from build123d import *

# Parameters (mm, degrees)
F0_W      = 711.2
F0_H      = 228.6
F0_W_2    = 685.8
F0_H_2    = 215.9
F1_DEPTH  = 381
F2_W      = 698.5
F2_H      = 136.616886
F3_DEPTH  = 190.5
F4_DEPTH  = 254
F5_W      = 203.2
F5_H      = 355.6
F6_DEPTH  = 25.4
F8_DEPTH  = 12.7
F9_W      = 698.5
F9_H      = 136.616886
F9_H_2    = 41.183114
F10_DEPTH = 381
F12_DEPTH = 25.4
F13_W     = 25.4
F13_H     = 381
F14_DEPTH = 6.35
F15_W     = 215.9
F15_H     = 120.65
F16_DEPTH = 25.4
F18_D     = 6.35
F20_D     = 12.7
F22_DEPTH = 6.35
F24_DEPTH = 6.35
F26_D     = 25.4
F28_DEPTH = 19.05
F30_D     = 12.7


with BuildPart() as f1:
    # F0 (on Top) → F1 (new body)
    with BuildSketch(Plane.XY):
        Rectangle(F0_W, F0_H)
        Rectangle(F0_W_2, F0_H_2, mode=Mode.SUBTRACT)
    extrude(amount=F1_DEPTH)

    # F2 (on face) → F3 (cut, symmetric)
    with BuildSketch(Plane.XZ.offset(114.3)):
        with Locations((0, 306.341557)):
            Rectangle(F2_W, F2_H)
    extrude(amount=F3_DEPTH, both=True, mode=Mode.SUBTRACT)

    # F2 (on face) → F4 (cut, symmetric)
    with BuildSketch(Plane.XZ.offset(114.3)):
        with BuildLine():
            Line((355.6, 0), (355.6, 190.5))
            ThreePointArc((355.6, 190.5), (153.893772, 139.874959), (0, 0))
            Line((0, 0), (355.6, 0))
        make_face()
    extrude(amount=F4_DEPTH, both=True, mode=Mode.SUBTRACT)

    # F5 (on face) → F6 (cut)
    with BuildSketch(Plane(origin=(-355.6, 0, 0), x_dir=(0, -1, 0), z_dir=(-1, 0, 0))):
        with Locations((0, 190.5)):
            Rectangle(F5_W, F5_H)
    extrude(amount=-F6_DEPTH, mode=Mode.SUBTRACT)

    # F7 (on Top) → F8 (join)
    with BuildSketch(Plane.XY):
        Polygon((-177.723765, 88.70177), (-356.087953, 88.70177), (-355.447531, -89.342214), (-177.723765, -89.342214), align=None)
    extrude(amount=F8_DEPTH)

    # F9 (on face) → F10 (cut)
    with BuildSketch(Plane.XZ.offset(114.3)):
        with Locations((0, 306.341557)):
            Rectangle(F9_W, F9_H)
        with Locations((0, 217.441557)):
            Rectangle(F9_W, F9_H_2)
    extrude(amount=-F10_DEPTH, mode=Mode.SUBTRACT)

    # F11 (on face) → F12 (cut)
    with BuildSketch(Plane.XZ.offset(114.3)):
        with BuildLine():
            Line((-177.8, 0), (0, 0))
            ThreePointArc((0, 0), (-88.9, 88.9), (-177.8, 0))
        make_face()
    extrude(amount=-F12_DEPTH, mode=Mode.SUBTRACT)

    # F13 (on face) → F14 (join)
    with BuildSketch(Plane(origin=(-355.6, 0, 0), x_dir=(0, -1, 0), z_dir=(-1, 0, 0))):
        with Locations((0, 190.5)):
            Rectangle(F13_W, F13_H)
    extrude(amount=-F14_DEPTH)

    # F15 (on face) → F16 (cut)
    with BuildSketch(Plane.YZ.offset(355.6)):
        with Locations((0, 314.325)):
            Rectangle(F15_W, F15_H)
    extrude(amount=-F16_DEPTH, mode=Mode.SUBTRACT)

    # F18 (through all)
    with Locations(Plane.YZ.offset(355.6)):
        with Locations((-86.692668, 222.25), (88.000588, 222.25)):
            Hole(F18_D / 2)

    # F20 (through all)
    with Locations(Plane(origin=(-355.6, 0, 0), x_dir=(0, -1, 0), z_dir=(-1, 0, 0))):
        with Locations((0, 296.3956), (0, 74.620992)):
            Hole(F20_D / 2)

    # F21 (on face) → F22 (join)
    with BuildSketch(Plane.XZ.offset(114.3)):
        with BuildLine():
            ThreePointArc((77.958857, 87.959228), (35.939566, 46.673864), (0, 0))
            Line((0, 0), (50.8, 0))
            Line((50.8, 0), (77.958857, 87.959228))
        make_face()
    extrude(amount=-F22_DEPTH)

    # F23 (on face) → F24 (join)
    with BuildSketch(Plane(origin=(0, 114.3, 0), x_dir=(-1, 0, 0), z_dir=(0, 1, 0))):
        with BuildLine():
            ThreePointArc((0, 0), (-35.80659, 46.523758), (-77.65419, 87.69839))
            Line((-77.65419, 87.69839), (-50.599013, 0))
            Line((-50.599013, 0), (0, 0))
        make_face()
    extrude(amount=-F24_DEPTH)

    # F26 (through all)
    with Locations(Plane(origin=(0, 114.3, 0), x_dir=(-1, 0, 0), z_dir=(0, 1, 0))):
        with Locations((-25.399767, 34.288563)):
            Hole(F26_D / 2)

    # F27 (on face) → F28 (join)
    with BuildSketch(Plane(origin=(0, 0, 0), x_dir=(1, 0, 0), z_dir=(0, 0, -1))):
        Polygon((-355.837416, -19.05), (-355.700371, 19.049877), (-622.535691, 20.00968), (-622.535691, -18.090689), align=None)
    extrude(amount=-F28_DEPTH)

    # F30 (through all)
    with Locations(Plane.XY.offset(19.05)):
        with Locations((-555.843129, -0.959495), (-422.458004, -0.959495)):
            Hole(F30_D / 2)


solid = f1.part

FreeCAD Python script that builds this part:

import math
import FreeCAD as App
import Part
import Sketcher
from FreeCAD import Vector
Q = App.Units.Quantity


def add_polygon(sketch, points):
    """Adds a closed chain of lines whose ends are joined by coincident constraints."""
    first, n = sketch.GeometryCount, len(points)
    for a, b in zip(points, points[1:] + points[:1]):
        sketch.addGeometry(Part.LineSegment(App.Vector(*a, 0), App.Vector(*b, 0)), False)
    for i in range(n):
        sketch.addConstraint(Sketcher.Constraint("Coincident", first + i, 2, first + (i + 1) % n, 1))

doc = App.newDocument("Part")
body = doc.addObject("PartDesign::Body", "Body")

# Sketch on XY plane
sketch1 = body.newObject("Sketcher::SketchObject", "Sketch")
sketch1.AttachmentSupport = (doc.getObject("XY_Plane"), [""])
sketch1.MapMode = "FlatFace"
add_polygon(sketch1, [(-355.6, 114.3), (-355.6, -114.3), (355.6, -114.3), (355.6, 114.3)])  # lines 0-3
add_polygon(sketch1, [(342.9, -107.95), (-342.9, -107.95), (-342.9, 107.95), (342.9, 107.95)])  # lines 4-7
sketch1.addConstraint([
    Sketcher.Constraint("Vertical", 0),
    Sketcher.Constraint("Horizontal", 1),
    Sketcher.Constraint("Vertical", 2),
    Sketcher.Constraint("Horizontal", 3),
    Sketcher.Constraint("Horizontal", 4),
    Sketcher.Constraint("Vertical", 5),
    Sketcher.Constraint("Horizontal", 6),
    Sketcher.Constraint("Vertical", 7),
    Sketcher.Constraint("Symmetric", 0, 2, 2, 2, -1, 1),
    Sketcher.Constraint("Symmetric", 4, 2, 6, 2, -1, 1),
    Sketcher.Constraint("DistanceX", 1, 1, 1, 2, Q("28 in")),
    Sketcher.Constraint("DistanceX", 4, 2, 4, 1, Q("27 in")),
    Sketcher.Constraint("DistanceY", 0, 2, 0, 1, Q("9 in")),
    Sketcher.Constraint("DistanceY", 5, 1, 5, 2, Q("8.5 in")),
])
pad1 = body.newObject("PartDesign::Pad", "Pad")
pad1.Profile = sketch1
pad1.Length = Q("15 in")

# Sketch on XZ plane
sketch2 = body.newObject("Sketcher::SketchObject", "Sketch001")
sketch2.AttachmentSupport = (doc.getObject("XZ_Plane"), [""])
sketch2.MapMode = "FlatFace"
sketch2.AttachmentOffset = App.Placement(Vector(0, 0, 4.5 * 25.4), App.Rotation())
add_polygon(sketch2, [(-349.25, 374.65), (-349.25, 238.033114), (349.25, 238.033114), (349.25, 374.65)])  # lines 0-3
sketch2.addConstraint([
    Sketcher.Constraint("Vertical", 0),
    Sketcher.Constraint("Horizontal", 1),
    Sketcher.Constraint("Vertical", 2),
    Sketcher.Constraint("Horizontal", 3),
    Sketcher.Constraint("DistanceX", 1, 1, 1, 2, Q("27.5 in")),
    Sketcher.Constraint("DistanceX", 0, 2, -1, 1, Q("13.75 in")),
    Sketcher.Constraint("DistanceY", -1, 1, 2, 2, Q("14.75 in")),
    Sketcher.Constraint("DistanceY", 0, 2, 0, 1, Q("136.616886 mm")),
])
pocket1 = body.newObject("PartDesign::Pocket", "Pocket")
pocket1.Profile = sketch2
pocket1.Length = Q("15 in")
pocket1.Midplane = True

# Sketch on XZ plane
sketch3 = body.newObject("Sketcher::SketchObject", "Sketch002")
sketch3.AttachmentSupport = (doc.getObject("XZ_Plane"), [""])
sketch3.MapMode = "FlatFace"
sketch3.AttachmentOffset = App.Placement(Vector(0, 0, 4.5 * 25.4), App.Rotation())
sketch3.addGeometry([
    Part.LineSegment(Vector(355.6, 0, 0), Vector(355.6, 190.5, 0)),
    Part.ArcOfCircle(Part.Circle(Vector(355.600002, -236.643336, 0), Vector(0, 0, 1), 427.143336), math.radians(90), math.radians(146.35718)),
    Part.LineSegment(Vector(0, 0, 0), Vector(355.6, 0, 0)),
], False)
sketch3.addConstraint([
    Sketcher.Constraint("Coincident", 0, 2, 1, 1),
    Sketcher.Constraint("Coincident", 1, 2, 2, 1),
    Sketcher.Constraint("Coincident", 2, 2, 0, 1),
    Sketcher.Constraint("Vertical", 0),
    Sketcher.Constraint("Horizontal", 2),
    Sketcher.Constraint("PointOnObject", 2, 2, -1),
    Sketcher.Constraint("Vertical", 1, 3, 0, 2),
    Sketcher.Constraint("DistanceX", 2, 1, 2, 2, Q("14 in")),
    Sketcher.Constraint("DistanceY", 0, 1, 0, 2, Q("7.5 in")),
    Sketcher.Constraint("DistanceX", -1, 1, 1, 3, Q("14.0000001 in")),
])
pocket2 = body.newObject("PartDesign::Pocket", "Pocket001")
pocket2.Profile = sketch3
pocket2.Length = Q("20 in")
pocket2.Midplane = True

# Sketch on YZ plane
sketch4 = body.newObject("Sketcher::SketchObject", "Sketch003")
sketch4.AttachmentSupport = (doc.getObject("YZ_Plane"), [""])
sketch4.MapMode = "FlatFace"
sketch4.AttachmentOffset = App.Placement(Vector(0, 0, -14 * 25.4), App.Rotation())
add_polygon(sketch4, [(101.6, 368.3), (101.6, 12.7), (-101.6, 12.7), (-101.6, 368.3)])  # lines 0-3
sketch4.addConstraint([
    Sketcher.Constraint("Vertical", 0),
    Sketcher.Constraint("Horizontal", 1),
    Sketcher.Constraint("Vertical", 2),
    Sketcher.Constraint("Horizontal", 3),
    Sketcher.Constraint("DistanceX", 1, 2, 1, 1, Q("8 in")),
    Sketcher.Constraint("DistanceY", 0, 2, 0, 1, Q("14 in")),
    Sketcher.Constraint("DistanceX", -1, 1, 0, 2, Q("4 in")),
    Sketcher.Constraint("DistanceY", -1, 1, 0, 2, Q("0.5 in")),
])
pocket3 = body.newObject("PartDesign::Pocket", "Pocket002")
pocket3.Profile = sketch4
pocket3.Length = Q("1 in")
pocket3.Reversed = True

# Sketch on XY plane
sketch5 = body.newObject("Sketcher::SketchObject", "Sketch004")
sketch5.AttachmentSupport = (doc.getObject("XY_Plane"), [""])
sketch5.MapMode = "FlatFace"
add_polygon(sketch5, [(-177.723765, 88.70177), (-356.087953, 88.70177), (-355.447531, -89.342214), (-177.723765, -89.342214)])  # lines 0-3
sketch5.addConstraint([
    Sketcher.Constraint("Horizontal", 0),
    Sketcher.Constraint("Horizontal", 2),
    Sketcher.Constraint("Vertical", 3),
    Sketcher.Constraint("DistanceX", 0, 2, 0, 1, Q("178.364188 mm")),
    Sketcher.Constraint("DistanceX", 2, 1, 2, 2, Q("177.723766 mm")),
    Sketcher.Constraint("DistanceY", 3, 1, 3, 2, Q("178.043984 mm")),
    Sketcher.Constraint("DistanceY", -1, 1, 0, 2, Q("88.70177 mm")),
    Sketcher.Constraint("DistanceX", 1, 2, -1, 1, Q("355.447531 mm")),
])
pad2 = body.newObject("PartDesign::Pad", "Pad001")
pad2.Profile = sketch5
pad2.Length = Q("0.5 in")

# Sketch on XZ plane
sketch6 = body.newObject("Sketcher::SketchObject", "Sketch005")
sketch6.AttachmentSupport = (doc.getObject("XZ_Plane"), [""])
sketch6.MapMode = "FlatFace"
sketch6.AttachmentOffset = App.Placement(Vector(0, 0, 4.5 * 25.4), App.Rotation())
add_polygon(sketch6, [(-349.25, 374.65), (-349.25, 196.85), (349.25, 196.85), (349.25, 374.65)])  # lines 0-3
sketch6.addConstraint([
    Sketcher.Constraint("Vertical", 0),
    Sketcher.Constraint("Horizontal", 1),
    Sketcher.Constraint("Vertical", 2),
    Sketcher.Constraint("Horizontal", 3),
    Sketcher.Constraint("DistanceY", 0, 2, 0, 1, Q("7 in")),
    Sketcher.Constraint("DistanceX", 1, 1, 1, 2, Q("27.5 in")),
    Sketcher.Constraint("DistanceX", 0, 2, -1, 1, Q("13.75 in")),
    Sketcher.Constraint("DistanceY", -1, 1, 0, 2, Q("7.75 in")),
])
pocket4 = body.newObject("PartDesign::Pocket", "Pocket003")
pocket4.Profile = sketch6
pocket4.Length = Q("15 in")

# Sketch on XZ plane
sketch7 = body.newObject("Sketcher::SketchObject", "Sketch006")
sketch7.AttachmentSupport = (doc.getObject("XZ_Plane"), [""])
sketch7.MapMode = "FlatFace"
sketch7.AttachmentOffset = App.Placement(Vector(0, 0, 4.5 * 25.4), App.Rotation())
sketch7.addGeometry([
    Part.LineSegment(Vector(-177.8, 0, 0), Vector(0, 0, 0)),
    Part.ArcOfCircle(Part.Circle(Vector(-88.9, 0, 0), Vector(0, 0, 1), 88.9), math.radians(0), math.radians(180)),
], False)
sketch7.addConstraint([
    Sketcher.Constraint("Coincident", 0, 1, 1, 2),
    Sketcher.Constraint("Coincident", 1, 1, 0, 2),
    Sketcher.Constraint("Horizontal", 0),
    Sketcher.Constraint("Coincident", 1, 1, -1, 1),
    Sketcher.Constraint("PointOnObject", 1, 3, -1),
    Sketcher.Constraint("Radius", 1, Q("3.5 in")),
])
pocket5 = body.newObject("PartDesign::Pocket", "Pocket004")
pocket5.Profile = sketch7
pocket5.Length = Q("1 in")

# Sketch on YZ plane
sketch8 = body.newObject("Sketcher::SketchObject", "Sketch007")
sketch8.AttachmentSupport = (doc.getObject("YZ_Plane"), [""])
sketch8.MapMode = "FlatFace"
sketch8.AttachmentOffset = App.Placement(Vector(0, 0, -14 * 25.4), App.Rotation())
add_polygon(sketch8, [(12.7, 381), (12.7, 0), (-12.7, 0), (-12.7, 381)])  # lines 0-3
sketch8.addConstraint([
    Sketcher.Constraint("Vertical", 0),
    Sketcher.Constraint("Horizontal", 1),
    Sketcher.Constraint("Vertical", 2),
    Sketcher.Constraint("Horizontal", 3),
    Sketcher.Constraint("Symmetric", 0, 2, 1, 2, -1, 1),
    Sketcher.Constraint("DistanceX", 1, 2, 1, 1, Q("1 in")),
    Sketcher.Constraint("DistanceY", 0, 2, 0, 1, Q("15 in")),
])
pad3 = body.newObject("PartDesign::Pad", "Pad002")
pad3.Profile = sketch8
pad3.Length = Q("0.25 in")

# Sketch on YZ plane
sketch9 = body.newObject("Sketcher::SketchObject", "Sketch008")
sketch9.AttachmentSupport = (doc.getObject("YZ_Plane"), [""])
sketch9.MapMode = "FlatFace"
sketch9.AttachmentOffset = App.Placement(Vector(0, 0, 14 * 25.4), App.Rotation())
add_polygon(sketch9, [(-107.95, 374.65), (-107.95, 254), (107.95, 254), (107.95, 374.65)])  # lines 0-3
sketch9.addConstraint([
    Sketcher.Constraint("Vertical", 0),
    Sketcher.Constraint("Horizontal", 1),
    Sketcher.Constraint("Vertical", 2),
    Sketcher.Constraint("Horizontal", 3),
    Sketcher.Constraint("DistanceX", 1, 1, 1, 2, Q("8.5 in")),
    Sketcher.Constraint("DistanceY", -1, 1, 0, 2, Q("10 in")),
    Sketcher.Constraint("DistanceY", 0, 2, 0, 1, Q("4.75 in")),
    Sketcher.Constraint("DistanceX", 0, 2, -1, 1, Q("4.25 in")),
])
pocket6 = body.newObject("PartDesign::Pocket", "Pocket005")
pocket6.Profile = sketch9
pocket6.Length = Q("1 in")

# Sketch on YZ plane
sketch10 = body.newObject("Sketcher::SketchObject", "Sketch009")
sketch10.AttachmentSupport = (doc.getObject("YZ_Plane"), [""])
sketch10.MapMode = "FlatFace"
sketch10.AttachmentOffset = App.Placement(Vector(0, 0, 14 * 25.4), App.Rotation())
sketch10.addGeometry([
    Part.Circle(Vector(-86.692668, 222.25, 0), Vector(0, 0, 1), 3.175),
    Part.Circle(Vector(88.000588, 222.25, 0), Vector(0, 0, 1), 3.175),
], False)
sketch10.addConstraint([
    Sketcher.Constraint("Equal", 0, 1),
    Sketcher.Constraint("Horizontal", 0, 3, 1, 3),
    Sketcher.Constraint("Diameter", 0, Q("0.25 in")),
    Sketcher.Constraint("DistanceY", -1, 1, 0, 3, Q("8.75 in")),
    Sketcher.Constraint("DistanceX", 0, 3, -1, 1, Q("86.692668 mm")),
    Sketcher.Constraint("DistanceX", -1, 1, 1, 3, Q("88.000588 mm")),
])
doc.recompute()
hole = body.newObject("PartDesign::Hole", "Hole")
hole.Profile = sketch10
hole.ThreadType = "None"
hole.Diameter = Q("0.25 in")
hole.DepthType = "ThroughAll"

# Sketch on YZ plane
sketch11 = body.newObject("Sketcher::SketchObject", "Sketch010")
sketch11.AttachmentSupport = (doc.getObject("YZ_Plane"), [""])
sketch11.MapMode = "FlatFace"
sketch11.AttachmentOffset = App.Placement(Vector(0, 0, -14 * 25.4), App.Rotation())
sketch11.addGeometry([
    Part.Circle(Vector(0, 296.3956, 0), Vector(0, 0, 1), 6.35),
    Part.Circle(Vector(0, 74.620992, 0), Vector(0, 0, 1), 6.35),
], False)
sketch11.addConstraint([
    Sketcher.Constraint("Equal", 0, 1),
    Sketcher.Constraint("PointOnObject", 0, 3, -2),
    Sketcher.Constraint("PointOnObject", 1, 3, -2),
    Sketcher.Constraint("Diameter", 0, Q("0.5 in")),
    Sketcher.Constraint("DistanceY", -1, 1, 0, 3, Q("296.3956 mm")),
    Sketcher.Constraint("DistanceY", -1, 1, 1, 3, Q("74.620992 mm")),
])
doc.recompute()
hole2 = body.newObject("PartDesign::Hole", "Hole001")
hole2.Profile = sketch11
hole2.ThreadType = "None"
hole2.Diameter = Q("0.5 in")
hole2.DepthType = "ThroughAll"
hole2.Reversed = True

# Sketch on XZ plane
sketch12 = body.newObject("Sketcher::SketchObject", "Sketch011")
sketch12.AttachmentSupport = (doc.getObject("XZ_Plane"), [""])
sketch12.MapMode = "FlatFace"
sketch12.AttachmentOffset = App.Placement(Vector(0, 0, 4.5 * 25.4), App.Rotation())
sketch12.addGeometry([
    Part.ArcOfCircle(Part.Circle(Vector(355.59998, -236.643317, 0), Vector(0, 0, 1), 427.143308), math.radians(130.541244), math.radians(146.357181)),
    Part.LineSegment(Vector(0, 0, 0), Vector(50.8, 0, 0)),
    Part.LineSegment(Vector(50.8, 0, 0), Vector(77.958857, 87.959228, 0)),
], False)
sketch12.addConstraint([
    Sketcher.Constraint("Coincident", 0, 2, 1, 1),
    Sketcher.Constraint("Coincident", 1, 2, 2, 1),
    Sketcher.Constraint("Coincident", 2, 2, 0, 1),
    Sketcher.Constraint("Horizontal", 1),
    Sketcher.Constraint("PointOnObject", 1, 2, -1),
    Sketcher.Constraint("DistanceX", 1, 1, 1, 2, Q("2 in")),
    Sketcher.Constraint("DistanceX", -1, 1, 1, 2, Q("2 in")),
    Sketcher.Constraint("Radius", 0, Q("427.143308 mm")),
    Sketcher.Constraint("DistanceX", -1, 1, 0, 3, Q("355.59998 mm")),
    Sketcher.Constraint("Distance", 2, Q("92.056664 mm")),
])
pad4 = body.newObject("PartDesign::Pad", "Pad003")
pad4.Profile = sketch12
pad4.Length = Q("0.25 in")
pad4.Reversed = True

# Sketch on XZ plane
sketch13 = body.newObject("Sketcher::SketchObject", "Sketch012")
sketch13.AttachmentSupport = (doc.getObject("XZ_Plane"), [""])
sketch13.MapMode = "FlatFace"
sketch13.AttachmentOffset = App.Placement(Vector(0, 0, -4.5 * 25.4), App.Rotation())
sketch13.addGeometry([
    Part.ArcOfCircle(Part.Circle(Vector(355.600027, -236.64336, 0), Vector(0, 0, 1), 427.143371), math.radians(130.595044), math.radians(146.357179)),
    Part.LineSegment(Vector(77.65419, 87.69839, 0), Vector(50.599013, 0, 0)),
    Part.LineSegment(Vector(50.599013, 0, 0), Vector(0, 0, 0)),
], False)
sketch13.addConstraint([
    Sketcher.Constraint("Coincident", 0, 1, 1, 1),
    Sketcher.Constraint("Coincident", 1, 2, 2, 1),
    Sketcher.Constraint("Coincident", 2, 2, 0, 2),
    Sketcher.Constraint("Horizontal", 2),
    Sketcher.Constraint("Coincident", 2, 2, -1, 1),
    Sketcher.Constraint("Radius", 0, Q("427.143371 mm")),
    Sketcher.Constraint("Distance", 1, Q("91.77685 mm")),
    Sketcher.Constraint("DistanceX", 2, 2, 2, 1, Q("50.599013 mm")),
    Sketcher.Constraint("DistanceY", 0, 3, -1, 1, Q("236.64336 mm")),
])
pad5 = body.newObject("PartDesign::Pad", "Pad004")
pad5.Profile = sketch13
pad5.Length = Q("0.25 in")

# Sketch on XZ plane
sketch14 = body.newObject("Sketcher::SketchObject", "Sketch013")
sketch14.AttachmentSupport = (doc.getObject("XZ_Plane"), [""])
sketch14.MapMode = "FlatFace"
sketch14.AttachmentOffset = App.Placement(Vector(0, 0, -4.5 * 25.4), App.Rotation())
sketch14.addGeometry(Part.Circle(Vector(25.399767, 34.288563, 0), Vector(0, 0, 1), 12.7), False)
sketch14.addConstraint([
    Sketcher.Constraint("Diameter", 0, Q("1 in")),
    Sketcher.Constraint("DistanceX", -1, 1, 0, 3, Q("25.399767 mm")),
    Sketcher.Constraint("DistanceY", -1, 1, 0, 3, Q("34.288563 mm")),
])
doc.recompute()
hole3 = body.newObject("PartDesign::Hole", "Hole002")
hole3.Profile = sketch14
hole3.ThreadType = "None"
hole3.Diameter = Q("1 in")
hole3.DepthType = "ThroughAll"
hole3.Reversed = True

# Sketch on XY plane
sketch15 = body.newObject("Sketcher::SketchObject", "Sketch014")
sketch15.AttachmentSupport = (doc.getObject("XY_Plane"), [""])
sketch15.MapMode = "FlatFace"
add_polygon(sketch15, [(-355.837416, 19.05), (-355.700371, -19.049877), (-622.535691, -20.00968), (-622.535691, 18.090689)])  # lines 0-3
sketch15.addConstraint([
    Sketcher.Constraint("Vertical", 2),
    Sketcher.Constraint("Perpendicular", 0, 1),
    Sketcher.Constraint("Parallel", 1, 3),
    Sketcher.Constraint("Distance", 3, Q("10.5 in")),
    Sketcher.Constraint("DistanceY", -1, 1, 3, 2, Q("0.75 in")),
    Sketcher.Constraint("DistanceY", 2, 1, 2, 2, Q("38.100369 mm")),
    Sketcher.Constraint("DistanceX", 0, 2, -1, 1, Q("355.700371 mm")),
    Sketcher.Constraint("DistanceX", 1, 2, -1, 1, Q("622.535691 mm")),
])
pad6 = body.newObject("PartDesign::Pad", "Pad005")
pad6.Profile = sketch15
pad6.Length = Q("0.75 in")

# Sketch on XY plane
sketch16 = body.newObject("Sketcher::SketchObject", "Sketch015")
sketch16.AttachmentSupport = (doc.getObject("XY_Plane"), [""])
sketch16.MapMode = "FlatFace"
sketch16.AttachmentOffset = App.Placement(Vector(0, 0, 0.75 * 25.4), App.Rotation())
sketch16.addGeometry([
    Part.Circle(Vector(-555.843129, -0.959495, 0), Vector(0, 0, 1), 6.35),
    Part.Circle(Vector(-422.458004, -0.959495, 0), Vector(0, 0, 1), 6.35),
], False)
sketch16.addConstraint([
    Sketcher.Constraint("Equal", 0, 1),
    Sketcher.Constraint("Horizontal", 0, 3, 1, 3),
    Sketcher.Constraint("Diameter", 0, Q("0.5 in")),
    Sketcher.Constraint("DistanceX", 0, 3, -1, 1, Q("555.843129 mm")),
    Sketcher.Constraint("DistanceY", 0, 3, -1, 1, Q("0.959495 mm")),
    Sketcher.Constraint("DistanceX", 1, 3, -1, 1, Q("422.458004 mm")),
])
doc.recompute()
hole4 = body.newObject("PartDesign::Hole", "Hole003")
hole4.Profile = sketch16
hole4.ThreadType = "None"
hole4.Diameter = Q("0.5 in")
hole4.DepthType = "ThroughAll"

doc.recompute()
